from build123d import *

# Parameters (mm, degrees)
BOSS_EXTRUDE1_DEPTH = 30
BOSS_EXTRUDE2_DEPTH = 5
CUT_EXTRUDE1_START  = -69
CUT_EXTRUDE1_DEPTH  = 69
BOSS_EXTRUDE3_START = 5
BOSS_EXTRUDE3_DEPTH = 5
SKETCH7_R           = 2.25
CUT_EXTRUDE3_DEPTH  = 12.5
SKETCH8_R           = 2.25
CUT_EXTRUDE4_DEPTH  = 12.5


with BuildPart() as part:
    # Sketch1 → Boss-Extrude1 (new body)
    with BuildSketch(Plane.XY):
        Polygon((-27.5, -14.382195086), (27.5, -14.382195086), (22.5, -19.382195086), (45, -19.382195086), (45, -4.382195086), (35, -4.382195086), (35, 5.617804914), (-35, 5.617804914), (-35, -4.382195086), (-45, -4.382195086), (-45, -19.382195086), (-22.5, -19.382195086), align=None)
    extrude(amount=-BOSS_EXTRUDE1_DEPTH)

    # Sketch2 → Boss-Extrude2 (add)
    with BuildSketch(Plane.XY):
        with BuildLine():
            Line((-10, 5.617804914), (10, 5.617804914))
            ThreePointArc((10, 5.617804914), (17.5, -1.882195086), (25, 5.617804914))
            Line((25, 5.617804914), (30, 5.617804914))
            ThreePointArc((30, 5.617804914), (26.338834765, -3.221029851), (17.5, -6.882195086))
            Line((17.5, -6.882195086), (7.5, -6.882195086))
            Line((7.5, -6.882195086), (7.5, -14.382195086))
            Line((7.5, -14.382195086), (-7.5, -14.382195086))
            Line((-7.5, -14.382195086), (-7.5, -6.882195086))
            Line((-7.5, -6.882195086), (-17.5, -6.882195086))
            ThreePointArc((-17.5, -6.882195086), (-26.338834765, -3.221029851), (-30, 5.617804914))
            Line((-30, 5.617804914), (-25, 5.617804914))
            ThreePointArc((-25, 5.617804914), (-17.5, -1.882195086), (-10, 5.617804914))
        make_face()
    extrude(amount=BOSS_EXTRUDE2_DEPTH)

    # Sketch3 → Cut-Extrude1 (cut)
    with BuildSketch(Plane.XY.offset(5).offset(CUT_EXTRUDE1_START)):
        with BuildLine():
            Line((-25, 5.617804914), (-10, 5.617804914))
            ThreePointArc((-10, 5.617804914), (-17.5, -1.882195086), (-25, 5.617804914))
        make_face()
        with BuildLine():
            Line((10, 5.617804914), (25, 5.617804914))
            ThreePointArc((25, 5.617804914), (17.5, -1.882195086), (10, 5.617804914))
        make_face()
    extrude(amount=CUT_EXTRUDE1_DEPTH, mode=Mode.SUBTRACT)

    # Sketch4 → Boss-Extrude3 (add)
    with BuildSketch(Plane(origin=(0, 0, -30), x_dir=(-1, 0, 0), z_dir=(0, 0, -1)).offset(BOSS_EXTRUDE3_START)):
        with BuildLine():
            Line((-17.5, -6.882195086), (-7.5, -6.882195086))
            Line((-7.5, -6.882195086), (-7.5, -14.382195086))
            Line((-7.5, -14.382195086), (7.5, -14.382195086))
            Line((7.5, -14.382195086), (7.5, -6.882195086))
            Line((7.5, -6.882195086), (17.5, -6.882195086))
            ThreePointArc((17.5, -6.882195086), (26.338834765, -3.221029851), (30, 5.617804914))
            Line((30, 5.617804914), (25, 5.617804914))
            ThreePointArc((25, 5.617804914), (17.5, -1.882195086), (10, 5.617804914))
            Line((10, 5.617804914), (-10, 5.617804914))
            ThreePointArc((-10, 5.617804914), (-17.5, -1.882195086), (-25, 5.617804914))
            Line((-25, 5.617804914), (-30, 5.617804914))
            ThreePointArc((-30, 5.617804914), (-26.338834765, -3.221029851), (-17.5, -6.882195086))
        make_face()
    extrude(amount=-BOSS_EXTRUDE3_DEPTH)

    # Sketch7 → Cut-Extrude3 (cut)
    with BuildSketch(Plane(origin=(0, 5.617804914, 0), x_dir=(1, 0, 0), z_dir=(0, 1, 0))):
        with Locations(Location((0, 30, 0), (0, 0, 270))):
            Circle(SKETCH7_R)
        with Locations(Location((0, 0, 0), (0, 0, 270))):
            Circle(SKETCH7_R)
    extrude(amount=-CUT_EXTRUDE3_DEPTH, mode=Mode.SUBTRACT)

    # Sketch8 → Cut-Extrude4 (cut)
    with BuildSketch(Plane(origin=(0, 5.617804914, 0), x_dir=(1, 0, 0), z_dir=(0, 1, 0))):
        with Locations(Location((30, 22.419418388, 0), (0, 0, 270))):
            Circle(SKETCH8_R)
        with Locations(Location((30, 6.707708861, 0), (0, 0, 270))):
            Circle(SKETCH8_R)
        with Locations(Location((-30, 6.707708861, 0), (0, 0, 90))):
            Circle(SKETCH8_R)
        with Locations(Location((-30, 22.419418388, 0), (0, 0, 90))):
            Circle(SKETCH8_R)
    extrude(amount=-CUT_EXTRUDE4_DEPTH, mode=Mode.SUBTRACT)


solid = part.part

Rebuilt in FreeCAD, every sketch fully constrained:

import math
import FreeCAD as App
import Part
import Sketcher
from FreeCAD import Vector

doc = App.newDocument("Part")
params = doc.addObject("Spreadsheet::Sheet", "Params")
for row, (alias, value) in enumerate([
    ("sketch1_width", "55 mm"),
    ("sketch1_width2", "10 mm"),
    ("sketch1_width3", "70 mm"),
    ("sketch1_height", "15 mm"),
    ("sketch1_width4", "22.5 mm"),
    ("pad1_length", "30 mm"),
    ("sketch2_radius", "7.5 mm"),
    ("sketch2_radius2", "12.5 mm"),
    ("sketch2_width", "20 mm"),
    ("sketch2_width2", "10 mm"),
    ("sketch2_height", "7.5 mm"),
    ("pad2_length", "5 mm"),
    ("sketch3_radius", "7.5 mm"),
    ("pocket1_length", "69 mm"),
    ("sketch4_radius", "12.5 mm"),
    ("sketch4_radius2", "7.5 mm"),
    ("sketch4_width", "10 mm"),
    ("sketch4_width2", "15 mm"),
    ("sketch4_height", "7.5 mm"),
    ("pad3_length", "5 mm"),
    ("sketch5_diameter", "4.5 mm"),
    ("pocket2_length", "12.5 mm"),
    ("sketch6_diameter", "4.5 mm"),
    ("pocket3_length", "12.5 mm"),
], start=1):
    params.set(f"A{row}", alias)
    params.set(f"B{row}", "=" + value)
    params.setAlias(f"B{row}", alias)

body = doc.addObject("PartDesign::Body", "Body")

# Sketch on XY plane
sketch1 = body.newObject("Sketcher::SketchObject", "Sketch")
sketch1.AttachmentSupport = (doc.getObject("XY_Plane"), [""])
sketch1.MapMode = "FlatFace"
sketch1.addGeometry(Part.LineSegment(Vector(-27.5, -14.382195, 0), Vector(27.5, -14.382195, 0)), False)
sketch1.addGeometry(Part.LineSegment(Vector(27.5, -14.382195, 0), Vector(22.5, -19.382195, 0)), False)
sketch1.addGeometry(Part.LineSegment(Vector(22.5, -19.382195, 0), Vector(45, -19.382195, 0)), False)
sketch1.addGeometry(Part.LineSegment(Vector(45, -19.382195, 0), Vector(45, -4.382195, 0)), False)
sketch1.addGeometry(Part.LineSegment(Vector(45, -4.382195, 0), Vector(35, -4.382195, 0)), False)
sketch1.addGeometry(Part.LineSegment(Vector(35, -4.382195, 0), Vector(35, 5.617805, 0)), False)
sketch1.addGeometry(Part.LineSegment(Vector(35, 5.617805, 0), Vector(-35, 5.617805, 0)), False)
sketch1.addGeometry(Part.LineSegment(Vector(-35, 5.617805, 0), Vector(-35, -4.382195, 0)), False)
sketch1.addGeometry(Part.LineSegment(Vector(-35, -4.382195, 0), Vector(-45, -4.382195, 0)), False)
sketch1.addGeometry(Part.LineSegment(Vector(-45, -4.382195, 0), Vector(-45, -19.382195, 0)), False)
sketch1.addGeometry(Part.LineSegment(Vector(-45, -19.382195, 0), Vector(-22.5, -19.382195, 0)), False)
sketch1.addGeometry(Part.LineSegment(Vector(-22.5, -19.382195, 0), Vector(-27.5, -14.382195, 0)), False)
sketch1.addConstraint(Sketcher.Constraint("Coincident", 0, 2, 1, 1))
sketch1.addConstraint(Sketcher.Constraint("Coincident", 1, 2, 2, 1))
sketch1.addConstraint(Sketcher.Constraint("Coincident", 2, 2, 3, 1))
sketch1.addConstraint(Sketcher.Constraint("Coincident", 3, 2, 4, 1))
sketch1.addConstraint(Sketcher.Constraint("Coincident", 4, 2, 5, 1))
sketch1.addConstraint(Sketcher.Constraint("Coincident", 5, 2, 6, 1))
sketch1.addConstraint(Sketcher.Constraint("Coincident", 6, 2, 7, 1))
sketch1.addConstraint(Sketcher.Constraint("Coincident", 7, 2, 8, 1))
sketch1.addConstraint(Sketcher.Constraint("Coincident", 8, 2, 9, 1))
sketch1.addConstraint(Sketcher.Constraint("Coincident", 9, 2, 10, 1))
sketch1.addConstraint(Sketcher.Constraint("Coincident", 10, 2, 11, 1))
sketch1.addConstraint(Sketcher.Constraint("Coincident", 11, 2, 0, 1))
sketch1.addConstraint(Sketcher.Constraint("Horizontal", 0))
sketch1.addConstraint(Sketcher.Constraint("Horizontal", 2))
sketch1.addConstraint(Sketcher.Constraint("Vertical", 3))
sketch1.addConstraint(Sketcher.Constraint("Horizontal", 4))
sketch1.addConstraint(Sketcher.Constraint("Vertical", 5))
sketch1.addConstraint(Sketcher.Constraint("Horizontal", 6))
sketch1.addConstraint(Sketcher.Constraint("Vertical", 7))
sketch1.addConstraint(Sketcher.Constraint("Horizontal", 8))
sketch1.addConstraint(Sketcher.Constraint("Vertical", 9))
sketch1.addConstraint(Sketcher.Constraint("Horizontal", 10))
sketch1.addConstraint(Sketcher.Constraint("Symmetric", 4, 2, 7, 2, -2))
sketch1.addConstraint(Sketcher.Constraint("Symmetric", 2, 2, 9, 2, -2))
sketch1.addConstraint(Sketcher.Constraint("Perpendicular", 1, 11))
sketch1.addConstraint(Sketcher.Constraint("Equal", 2, 10))
sketch1.addConstraint(Sketcher.Constraint("Equal", 8, 5))
sketch1.addConstraint(Sketcher.Constraint("Equal", 1, 11))
sketch1.addConstraint(Sketcher.Constraint("DistanceX", 0, 1, 0, 2, 55.0))
sketch1.addConstraint(Sketcher.Constraint("DistanceX", 4, 2, 4, 1, 10.0))
sketch1.addConstraint(Sketcher.Constraint("DistanceX", 6, 2, 6, 1, 70.0))
sketch1.addConstraint(Sketcher.Constraint("DistanceY", 3, 1, 3, 2, 15.0))
sketch1.addConstraint(Sketcher.Constraint("DistanceX", 2, 1, 2, 2, 22.5))
sketch1.addConstraint(Sketcher.Constraint("DistanceY", 0, 2, -1, 1, 14.382195))
sketch1.setExpression("Constraints[28]", "Params.sketch1_width")
sketch1.setExpression("Constraints[29]", "Params.sketch1_width2")
sketch1.setExpression("Constraints[30]", "Params.sketch1_width3")
sketch1.setExpression("Constraints[31]", "Params.sketch1_height")
sketch1.setExpression("Constraints[32]", "Params.sketch1_width4")
pad1 = body.newObject("PartDesign::Pad", "Pad")
pad1.Profile = sketch1
pad1.setExpression("Length", "Params.pad1_length")
pad1.Reversed = True

# Sketch on XY plane
sketch2 = body.newObject("Sketcher::SketchObject", "Sketch001")
sketch2.AttachmentSupport = (doc.getObject("XY_Plane"), [""])
sketch2.MapMode = "FlatFace"
sketch2.addGeometry(Part.LineSegment(Vector(10, 5.617805, 0), Vector(-10, 5.617805, 0)), False)
sketch2.addGeometry(Part.ArcOfCircle(Part.Circle(Vector(-17.5, 5.617805, 0), Vector(0, 0, 1), 7.5), math.radians(180), math.radians(360)), False)
sketch2.addGeometry(Part.LineSegment(Vector(-25, 5.617805, 0), Vector(-30, 5.617805, 0)), False)
sketch2.addGeometry(Part.ArcOfCircle(Part.Circle(Vector(-17.5, 5.617805, 0), Vector(0, 0, 1), 12.5), math.radians(180), math.radians(270)), False)
sketch2.addGeometry(Part.LineSegment(Vector(-17.5, -6.882195, 0), Vector(-7.5, -6.882195, 0)), False)
sketch2.addGeometry(Part.LineSegment(Vector(-7.5, -6.882195, 0), Vector(-7.5, -14.382195, 0)), False)
sketch2.addGeometry(Part.LineSegment(Vector(-7.5, -14.382195, 0), Vector(7.5, -14.382195, 0)), False)
sketch2.addGeometry(Part.LineSegment(Vector(7.5, -14.382195, 0), Vector(7.5, -6.882195, 0)), False)
sketch2.addGeometry(Part.LineSegment(Vector(7.5, -6.882195, 0), Vector(17.5, -6.882195, 0)), False)
sketch2.addGeometry(Part.ArcOfCircle(Part.Circle(Vector(17.5, 5.617805, 0), Vector(0, 0, 1), 12.5), math.radians(-90), math.radians(0)), False)
sketch2.addGeometry(Part.LineSegment(Vector(30, 5.617805, 0), Vector(25, 5.617805, 0)), False)
sketch2.addGeometry(Part.ArcOfCircle(Part.Circle(Vector(17.5, 5.617805, 0), Vector(0, 0, 1), 7.5), math.radians(180), math.radians(360)), False)
sketch2.addConstraint(Sketcher.Constraint("Coincident", 0, 2, 1, 2))
sketch2.addConstraint(Sketcher.Constraint("Coincident", 1, 1, 2, 1))
sketch2.addConstraint(Sketcher.Constraint("Coincident", 2, 2, 3, 1))
sketch2.addConstraint(Sketcher.Constraint("Tangent", 3, 2, 4, 1))
sketch2.addConstraint(Sketcher.Constraint("Coincident", 4, 2, 5, 1))
sketch2.addConstraint(Sketcher.Constraint("Coincident", 5, 2, 6, 1))
sketch2.addConstraint(Sketcher.Constraint("Coincident", 6, 2, 7, 1))
sketch2.addConstraint(Sketcher.Constraint("Coincident", 7, 2, 8, 1))
sketch2.addConstraint(Sketcher.Constraint("Tangent", 8, 2, 9, 1))
sketch2.addConstraint(Sketcher.Constraint("Coincident", 9, 2, 10, 1))
sketch2.addConstraint(Sketcher.Constraint("Coincident", 10, 2, 11, 2))
sketch2.addConstraint(Sketcher.Constraint("Coincident", 11, 1, 0, 1))
sketch2.addConstraint(Sketcher.Constraint("Horizontal", 0))
sketch2.addConstraint(Sketcher.Constraint("Horizontal", 2))
sketch2.addConstraint(Sketcher.Constraint("Horizontal", 4))
sketch2.addConstraint(Sketcher.Constraint("Vertical", 5))
sketch2.addConstraint(Sketcher.Constraint("Horizontal", 6))
sketch2.addConstraint(Sketcher.Constraint("Vertical", 7))
sketch2.addConstraint(Sketcher.Constraint("Horizontal", 8))
sketch2.addConstraint(Sketcher.Constraint("Horizontal", 10))
sketch2.addConstraint(Sketcher.Constraint("Coincident", 3, 3, 1, 3))
sketch2.addConstraint(Sketcher.Constraint("Coincident", 11, 3, 9, 3))
sketch2.addConstraint(Sketcher.Constraint("Equal", 3, 9))
sketch2.addConstraint(Sketcher.Constraint("Equal", 1, 11))
sketch2.addConstraint(Sketcher.Constraint("Symmetric", 1, 3, 9, 3, -2))
sketch2.addConstraint(Sketcher.Constraint("Horizontal", 11, 3, 0, 2))
sketch2.addConstraint(Sketcher.Constraint("Horizontal", 0, 2, 1, 1))
sketch2.addConstraint(Sketcher.Constraint("Horizontal", 2, 2, 9, 2))
sketch2.addConstraint(Sketcher.Constraint("Equal", 4, 8))
sketch2.addConstraint(Sketcher.Constraint("Radius", 1, 7.5))
sketch2.addConstraint(Sketcher.Constraint("Radius", 3, 12.5))
sketch2.addConstraint(Sketcher.Constraint("DistanceX", 0, 2, 0, 1, 20.0))
sketch2.addConstraint(Sketcher.Constraint("DistanceX", 4, 1, 4, 2, 10.0))
sketch2.addConstraint(Sketcher.Constraint("DistanceY", 5, 2, 5, 1, 7.5))
sketch2.addConstraint(Sketcher.Constraint("DistanceY", -1, 1, 1, 3, 5.617805))
sketch2.setExpression("Constraints[29]", "Params.sketch2_radius")
sketch2.setExpression("Constraints[30]", "Params.sketch2_radius2")
sketch2.setExpression("Constraints[31]", "Params.sketch2_width")
sketch2.setExpression("Constraints[32]", "Params.sketch2_width2")
sketch2.setExpression("Constraints[33]", "Params.sketch2_height")
pad2 = body.newObject("PartDesign::Pad", "Pad001")
pad2.Profile = sketch2
pad2.setExpression("Length", "Params.pad2_length")

# Sketch on XY plane
sketch3 = body.newObject("Sketcher::SketchObject", "Sketch002")
sketch3.AttachmentSupport = (doc.getObject("XY_Plane"), [""])
sketch3.MapMode = "FlatFace"
sketch3.AttachmentOffset = App.Placement(Vector(0, 0, -64), App.Rotation())
sketch3.addGeometry(Part.LineSegment(Vector(-10, 5.617805, 0), Vector(-25, 5.617805, 0)), False)
sketch3.addGeometry(Part.ArcOfCircle(Part.Circle(Vector(-17.5, 5.617805, 0), Vector(0, 0, 1), 7.5), math.radians(180), math.radians(360)), False)
sketch3.addGeometry(Part.LineSegment(Vector(25, 5.617805, 0), Vector(10, 5.617805, 0)), False)
sketch3.addGeometry(Part.ArcOfCircle(Part.Circle(Vector(17.5, 5.617805, 0), Vector(0, 0, 1), 7.5), math.radians(180), math.radians(360)), False)
sketch3.addConstraint(Sketcher.Constraint("Coincident", 0, 1, 1, 2))
sketch3.addConstraint(Sketcher.Constraint("Coincident", 1, 1, 0, 2))
sketch3.addConstraint(Sketcher.Constraint("Coincident", 2, 1, 3, 2))
sketch3.addConstraint(Sketcher.Constraint("Coincident", 3, 1, 2, 2))
sketch3.addConstraint(Sketcher.Constraint("Horizontal", 0))
sketch3.addConstraint(Sketcher.Constraint("Horizontal", 2))
sketch3.addConstraint(Sketcher.Constraint("Equal", 1, 3))
sketch3.addConstraint(Sketcher.Constraint("Symmetric", 1, 3, 3, 3, -2))
sketch3.addConstraint(Sketcher.Constraint("Horizontal", 3, 3, 0, 1))
sketch3.addConstraint(Sketcher.Constraint("Horizontal", 1, 1, 2, 1))
sketch3.addConstraint(Sketcher.Constraint("Radius", 1, 7.5))
sketch3.addConstraint(Sketcher.Constraint("DistanceX", 0, 1, -1, 1, 10.0))
sketch3.addConstraint(Sketcher.Constraint("DistanceY", -1, 1, 1, 3, 5.617805))
sketch3.setExpression("Constraints[10]", "Params.sketch3_radius")
pocket1 = body.newObject("PartDesign::Pocket", "Pocket")
pocket1.Profile = sketch3
pocket1.setExpression("Length", "Params.pocket1_length")
pocket1.Reversed = True

# Sketch on XY plane
sketch4 = body.newObject("Sketcher::SketchObject", "Sketch003")
sketch4.AttachmentSupport = (doc.getObject("XY_Plane"), [""])
sketch4.MapMode = "FlatFace"
sketch4.AttachmentOffset = App.Placement(Vector(0, 0, -35), App.Rotation())
sketch4.addGeometry(Part.LineSegment(Vector(17.5, -6.882195, 0), Vector(7.5, -6.882195, 0)), False)
sketch4.addGeometry(Part.LineSegment(Vector(7.5, -6.882195, 0), Vector(7.5, -14.382195, 0)), False)
sketch4.addGeometry(Part.LineSegment(Vector(7.5, -14.382195, 0), Vector(-7.5, -14.382195, 0)), False)
sketch4.addGeometry(Part.LineSegment(Vector(-7.5, -14.382195, 0), Vector(-7.5, -6.882195, 0)), False)
sketch4.addGeometry(Part.LineSegment(Vector(-7.5, -6.882195, 0), Vector(-17.5, -6.882195, 0)), False)
sketch4.addGeometry(Part.ArcOfCircle(Part.Circle(Vector(-17.5, 5.617805, 0), Vector(0, 0, 1), 12.5), math.radians(180), math.radians(270)), False)
sketch4.addGeometry(Part.LineSegment(Vector(-30, 5.617805, 0), Vector(-25, 5.617805, 0)), False)
sketch4.addGeometry(Part.ArcOfCircle(Part.Circle(Vector(-17.5, 5.617805, 0), Vector(0, 0, 1), 7.5), math.radians(180), math.radians(360)), False)
sketch4.addGeometry(Part.LineSegment(Vector(-10, 5.617805, 0), Vector(10, 5.617805, 0)), False)
sketch4.addGeometry(Part.ArcOfCircle(Part.Circle(Vector(17.5, 5.617805, 0), Vector(0, 0, 1), 7.5), math.radians(180), math.radians(360)), False)
sketch4.addGeometry(Part.LineSegment(Vector(25, 5.617805, 0), Vector(30, 5.617805, 0)), False)
sketch4.addGeometry(Part.ArcOfCircle(Part.Circle(Vector(17.5, 5.617805, 0), Vector(0, 0, 1), 12.5), math.radians(-90), math.radians(0)), False)
sketch4.addConstraint(Sketcher.Constraint("Coincident", 0, 2, 1, 1))
sketch4.addConstraint(Sketcher.Constraint("Coincident", 1, 2, 2, 1))
sketch4.addConstraint(Sketcher.Constraint("Coincident", 2, 2, 3, 1))
sketch4.addConstraint(Sketcher.Constraint("Coincident", 3, 2, 4, 1))
sketch4.addConstraint(Sketcher.Constraint("Tangent", 4, 2, 5, 2))
sketch4.addConstraint(Sketcher.Constraint("Coincident", 5, 1, 6, 1))
sketch4.addConstraint(Sketcher.Constraint("Coincident", 6, 2, 7, 1))
sketch4.addConstraint(Sketcher.Constraint("Coincident", 7, 2, 8, 1))
sketch4.addConstraint(Sketcher.Constraint("Coincident", 8, 2, 9, 1))
sketch4.addConstraint(Sketcher.Constraint("Coincident", 9, 2, 10, 1))
sketch4.addConstraint(Sketcher.Constraint("Coincident", 10, 2, 11, 2))
sketch4.addConstraint(Sketcher.Constraint("Tangent", 11, 1, 0, 1))
sketch4.addConstraint(Sketcher.Constraint("Horizontal", 0))
sketch4.addConstraint(Sketcher.Constraint("Vertical", 1))
sketch4.addConstraint(Sketcher.Constraint("Horizontal", 2))
sketch4.addConstraint(Sketcher.Constraint("Vertical", 3))
sketch4.addConstraint(Sketcher.Constraint("Horizontal", 4))
sketch4.addConstraint(Sketcher.Constraint("Horizontal", 6))
sketch4.addConstraint(Sketcher.Constraint("Horizontal", 8))
sketch4.addConstraint(Sketcher.Constraint("Horizontal", 10))
sketch4.addConstraint(Sketcher.Constraint("Coincident", 7, 3, 5, 3))
sketch4.addConstraint(Sketcher.Constraint("Coincident", 11, 3, 9, 3))
sketch4.addConstraint(Sketcher.Constraint("Equal", 7, 9))
sketch4.addConstraint(Sketcher.Constraint("Equal", 5, 11))
sketch4.addConstraint(Sketcher.Constraint("Symmetric", 5, 3, 9, 3, -2))
sketch4.addConstraint(Sketcher.Constraint("Horizontal", 11, 3, 5, 1))
sketch4.addConstraint(Sketcher.Constraint("Horizontal", 6, 2, 7, 2))
sketch4.addConstraint(Sketcher.Constraint("Horizontal", 8, 2, 9, 2))
sketch4.addConstraint(Sketcher.Constraint("Equal", 0, 4))
sketch4.addConstraint(Sketcher.Constraint("Radius", 5, 12.5))
sketch4.addConstraint(Sketcher.Constraint("Radius", 7, 7.5))
sketch4.addConstraint(Sketcher.Constraint("DistanceX", 0, 2, 0, 1, 10.0))
sketch4.addConstraint(Sketcher.Constraint("DistanceX", 2, 2, 2, 1, 15.0))
sketch4.addConstraint(Sketcher.Constraint("DistanceY", 1, 2, 1, 1, 7.5))
sketch4.addConstraint(Sketcher.Constraint("DistanceY", -1, 1, 5, 3, 5.617805))
sketch4.setExpression("Constraints[29]", "Params.sketch4_radius")
sketch4.setExpression("Constraints[30]", "Params.sketch4_radius2")
sketch4.setExpression("Constraints[31]", "Params.sketch4_width")
sketch4.setExpression("Constraints[32]", "Params.sketch4_width2")
sketch4.setExpression("Constraints[33]", "Params.sketch4_height")
pad3 = body.newObject("PartDesign::Pad", "Pad002")
pad3.Profile = sketch4
pad3.setExpression("Length", "Params.pad3_length")

# Sketch on XZ plane
sketch5 = body.newObject("Sketcher::SketchObject", "Sketch004")
sketch5.AttachmentSupport = (doc.getObject("XZ_Plane"), [""])
sketch5.MapMode = "FlatFace"
sketch5.AttachmentOffset = App.Placement(Vector(0, 0, -5.617805), App.Rotation())
sketch5.addGeometry(Part.Circle(Vector(0, -30, 0), Vector(0, 0, 1), 2.25), False)
sketch5.addGeometry(Part.Circle(Vector(0, 0, 0), Vector(0, 0, 1), 2.25), False)
sketch5.addConstraint(Sketcher.Constraint("Coincident", 1, 3, -1, 1))
sketch5.addConstraint(Sketcher.Constraint("Equal", 0, 1))
sketch5.addConstraint(Sketcher.Constraint("PointOnObject", 0, 3, -2))
sketch5.addConstraint(Sketcher.Constraint("Diameter", 0, 4.5))
sketch5.addConstraint(Sketcher.Constraint("DistanceY", 0, 3, -1, 1, 30.0))
sketch5.setExpression("Constraints[3]", "Params.sketch5_diameter")
pocket2 = body.newObject("PartDesign::Pocket", "Pocket001")
pocket2.Profile = sketch5
pocket2.setExpression("Length", "Params.pocket2_length")
pocket2.Reversed = True

# Sketch on XZ plane
sketch6 = body.newObject("Sketcher::SketchObject", "Sketch005")
sketch6.AttachmentSupport = (doc.getObject("XZ_Plane"), [""])
sketch6.MapMode = "FlatFace"
sketch6.AttachmentOffset = App.Placement(Vector(0, 0, -5.617805), App.Rotation())
sketch6.addGeometry(Part.Circle(Vector(30, -22.419418, 0), Vector(0, 0, 1), 2.25), False)
sketch6.addGeometry(Part.Circle(Vector(30, -6.707709, 0), Vector(0, 0, 1), 2.25), False)
sketch6.addGeometry(Part.Circle(Vector(-30, -6.707709, 0), Vector(0, 0, 1), 2.25), False)
sketch6.addGeometry(Part.Circle(Vector(-30, -22.419418, 0), Vector(0, 0, 1), 2.25), False)
sketch6.addConstraint(Sketcher.Constraint("Equal", 0, 1))
sketch6.addConstraint(Sketcher.Constraint("Equal", 1, 2))
sketch6.addConstraint(Sketcher.Constraint("Equal", 2, 3))
sketch6.addConstraint(Sketcher.Constraint("Symmetric", 1, 3, 2, 3, -2))
sketch6.addConstraint(Sketcher.Constraint("Symmetric", 0, 3, 3, 3, -2))
sketch6.addConstraint(Sketcher.Constraint("Vertical", 0, 3, 1, 3))
sketch6.addConstraint(Sketcher.Constraint("Diameter", 0, 4.5))
sketch6.addConstraint(Sketcher.Constraint("DistanceX", -1, 1, 0, 3, 30.0))
sketch6.addConstraint(Sketcher.Constraint("DistanceY", 0, 3, -1, 1, 22.419418))
sketch6.addConstraint(Sketcher.Constraint("DistanceY", 1, 3, -1, 1, 6.707709))
sketch6.setExpression("Constraints[6]", "Params.sketch6_diameter")
pocket3 = body.newObject("PartDesign::Pocket", "Pocket002")
pocket3.Profile = sketch6
pocket3.setExpression("Length", "Params.pocket3_length")
pocket3.Reversed = True

doc.recompute()
